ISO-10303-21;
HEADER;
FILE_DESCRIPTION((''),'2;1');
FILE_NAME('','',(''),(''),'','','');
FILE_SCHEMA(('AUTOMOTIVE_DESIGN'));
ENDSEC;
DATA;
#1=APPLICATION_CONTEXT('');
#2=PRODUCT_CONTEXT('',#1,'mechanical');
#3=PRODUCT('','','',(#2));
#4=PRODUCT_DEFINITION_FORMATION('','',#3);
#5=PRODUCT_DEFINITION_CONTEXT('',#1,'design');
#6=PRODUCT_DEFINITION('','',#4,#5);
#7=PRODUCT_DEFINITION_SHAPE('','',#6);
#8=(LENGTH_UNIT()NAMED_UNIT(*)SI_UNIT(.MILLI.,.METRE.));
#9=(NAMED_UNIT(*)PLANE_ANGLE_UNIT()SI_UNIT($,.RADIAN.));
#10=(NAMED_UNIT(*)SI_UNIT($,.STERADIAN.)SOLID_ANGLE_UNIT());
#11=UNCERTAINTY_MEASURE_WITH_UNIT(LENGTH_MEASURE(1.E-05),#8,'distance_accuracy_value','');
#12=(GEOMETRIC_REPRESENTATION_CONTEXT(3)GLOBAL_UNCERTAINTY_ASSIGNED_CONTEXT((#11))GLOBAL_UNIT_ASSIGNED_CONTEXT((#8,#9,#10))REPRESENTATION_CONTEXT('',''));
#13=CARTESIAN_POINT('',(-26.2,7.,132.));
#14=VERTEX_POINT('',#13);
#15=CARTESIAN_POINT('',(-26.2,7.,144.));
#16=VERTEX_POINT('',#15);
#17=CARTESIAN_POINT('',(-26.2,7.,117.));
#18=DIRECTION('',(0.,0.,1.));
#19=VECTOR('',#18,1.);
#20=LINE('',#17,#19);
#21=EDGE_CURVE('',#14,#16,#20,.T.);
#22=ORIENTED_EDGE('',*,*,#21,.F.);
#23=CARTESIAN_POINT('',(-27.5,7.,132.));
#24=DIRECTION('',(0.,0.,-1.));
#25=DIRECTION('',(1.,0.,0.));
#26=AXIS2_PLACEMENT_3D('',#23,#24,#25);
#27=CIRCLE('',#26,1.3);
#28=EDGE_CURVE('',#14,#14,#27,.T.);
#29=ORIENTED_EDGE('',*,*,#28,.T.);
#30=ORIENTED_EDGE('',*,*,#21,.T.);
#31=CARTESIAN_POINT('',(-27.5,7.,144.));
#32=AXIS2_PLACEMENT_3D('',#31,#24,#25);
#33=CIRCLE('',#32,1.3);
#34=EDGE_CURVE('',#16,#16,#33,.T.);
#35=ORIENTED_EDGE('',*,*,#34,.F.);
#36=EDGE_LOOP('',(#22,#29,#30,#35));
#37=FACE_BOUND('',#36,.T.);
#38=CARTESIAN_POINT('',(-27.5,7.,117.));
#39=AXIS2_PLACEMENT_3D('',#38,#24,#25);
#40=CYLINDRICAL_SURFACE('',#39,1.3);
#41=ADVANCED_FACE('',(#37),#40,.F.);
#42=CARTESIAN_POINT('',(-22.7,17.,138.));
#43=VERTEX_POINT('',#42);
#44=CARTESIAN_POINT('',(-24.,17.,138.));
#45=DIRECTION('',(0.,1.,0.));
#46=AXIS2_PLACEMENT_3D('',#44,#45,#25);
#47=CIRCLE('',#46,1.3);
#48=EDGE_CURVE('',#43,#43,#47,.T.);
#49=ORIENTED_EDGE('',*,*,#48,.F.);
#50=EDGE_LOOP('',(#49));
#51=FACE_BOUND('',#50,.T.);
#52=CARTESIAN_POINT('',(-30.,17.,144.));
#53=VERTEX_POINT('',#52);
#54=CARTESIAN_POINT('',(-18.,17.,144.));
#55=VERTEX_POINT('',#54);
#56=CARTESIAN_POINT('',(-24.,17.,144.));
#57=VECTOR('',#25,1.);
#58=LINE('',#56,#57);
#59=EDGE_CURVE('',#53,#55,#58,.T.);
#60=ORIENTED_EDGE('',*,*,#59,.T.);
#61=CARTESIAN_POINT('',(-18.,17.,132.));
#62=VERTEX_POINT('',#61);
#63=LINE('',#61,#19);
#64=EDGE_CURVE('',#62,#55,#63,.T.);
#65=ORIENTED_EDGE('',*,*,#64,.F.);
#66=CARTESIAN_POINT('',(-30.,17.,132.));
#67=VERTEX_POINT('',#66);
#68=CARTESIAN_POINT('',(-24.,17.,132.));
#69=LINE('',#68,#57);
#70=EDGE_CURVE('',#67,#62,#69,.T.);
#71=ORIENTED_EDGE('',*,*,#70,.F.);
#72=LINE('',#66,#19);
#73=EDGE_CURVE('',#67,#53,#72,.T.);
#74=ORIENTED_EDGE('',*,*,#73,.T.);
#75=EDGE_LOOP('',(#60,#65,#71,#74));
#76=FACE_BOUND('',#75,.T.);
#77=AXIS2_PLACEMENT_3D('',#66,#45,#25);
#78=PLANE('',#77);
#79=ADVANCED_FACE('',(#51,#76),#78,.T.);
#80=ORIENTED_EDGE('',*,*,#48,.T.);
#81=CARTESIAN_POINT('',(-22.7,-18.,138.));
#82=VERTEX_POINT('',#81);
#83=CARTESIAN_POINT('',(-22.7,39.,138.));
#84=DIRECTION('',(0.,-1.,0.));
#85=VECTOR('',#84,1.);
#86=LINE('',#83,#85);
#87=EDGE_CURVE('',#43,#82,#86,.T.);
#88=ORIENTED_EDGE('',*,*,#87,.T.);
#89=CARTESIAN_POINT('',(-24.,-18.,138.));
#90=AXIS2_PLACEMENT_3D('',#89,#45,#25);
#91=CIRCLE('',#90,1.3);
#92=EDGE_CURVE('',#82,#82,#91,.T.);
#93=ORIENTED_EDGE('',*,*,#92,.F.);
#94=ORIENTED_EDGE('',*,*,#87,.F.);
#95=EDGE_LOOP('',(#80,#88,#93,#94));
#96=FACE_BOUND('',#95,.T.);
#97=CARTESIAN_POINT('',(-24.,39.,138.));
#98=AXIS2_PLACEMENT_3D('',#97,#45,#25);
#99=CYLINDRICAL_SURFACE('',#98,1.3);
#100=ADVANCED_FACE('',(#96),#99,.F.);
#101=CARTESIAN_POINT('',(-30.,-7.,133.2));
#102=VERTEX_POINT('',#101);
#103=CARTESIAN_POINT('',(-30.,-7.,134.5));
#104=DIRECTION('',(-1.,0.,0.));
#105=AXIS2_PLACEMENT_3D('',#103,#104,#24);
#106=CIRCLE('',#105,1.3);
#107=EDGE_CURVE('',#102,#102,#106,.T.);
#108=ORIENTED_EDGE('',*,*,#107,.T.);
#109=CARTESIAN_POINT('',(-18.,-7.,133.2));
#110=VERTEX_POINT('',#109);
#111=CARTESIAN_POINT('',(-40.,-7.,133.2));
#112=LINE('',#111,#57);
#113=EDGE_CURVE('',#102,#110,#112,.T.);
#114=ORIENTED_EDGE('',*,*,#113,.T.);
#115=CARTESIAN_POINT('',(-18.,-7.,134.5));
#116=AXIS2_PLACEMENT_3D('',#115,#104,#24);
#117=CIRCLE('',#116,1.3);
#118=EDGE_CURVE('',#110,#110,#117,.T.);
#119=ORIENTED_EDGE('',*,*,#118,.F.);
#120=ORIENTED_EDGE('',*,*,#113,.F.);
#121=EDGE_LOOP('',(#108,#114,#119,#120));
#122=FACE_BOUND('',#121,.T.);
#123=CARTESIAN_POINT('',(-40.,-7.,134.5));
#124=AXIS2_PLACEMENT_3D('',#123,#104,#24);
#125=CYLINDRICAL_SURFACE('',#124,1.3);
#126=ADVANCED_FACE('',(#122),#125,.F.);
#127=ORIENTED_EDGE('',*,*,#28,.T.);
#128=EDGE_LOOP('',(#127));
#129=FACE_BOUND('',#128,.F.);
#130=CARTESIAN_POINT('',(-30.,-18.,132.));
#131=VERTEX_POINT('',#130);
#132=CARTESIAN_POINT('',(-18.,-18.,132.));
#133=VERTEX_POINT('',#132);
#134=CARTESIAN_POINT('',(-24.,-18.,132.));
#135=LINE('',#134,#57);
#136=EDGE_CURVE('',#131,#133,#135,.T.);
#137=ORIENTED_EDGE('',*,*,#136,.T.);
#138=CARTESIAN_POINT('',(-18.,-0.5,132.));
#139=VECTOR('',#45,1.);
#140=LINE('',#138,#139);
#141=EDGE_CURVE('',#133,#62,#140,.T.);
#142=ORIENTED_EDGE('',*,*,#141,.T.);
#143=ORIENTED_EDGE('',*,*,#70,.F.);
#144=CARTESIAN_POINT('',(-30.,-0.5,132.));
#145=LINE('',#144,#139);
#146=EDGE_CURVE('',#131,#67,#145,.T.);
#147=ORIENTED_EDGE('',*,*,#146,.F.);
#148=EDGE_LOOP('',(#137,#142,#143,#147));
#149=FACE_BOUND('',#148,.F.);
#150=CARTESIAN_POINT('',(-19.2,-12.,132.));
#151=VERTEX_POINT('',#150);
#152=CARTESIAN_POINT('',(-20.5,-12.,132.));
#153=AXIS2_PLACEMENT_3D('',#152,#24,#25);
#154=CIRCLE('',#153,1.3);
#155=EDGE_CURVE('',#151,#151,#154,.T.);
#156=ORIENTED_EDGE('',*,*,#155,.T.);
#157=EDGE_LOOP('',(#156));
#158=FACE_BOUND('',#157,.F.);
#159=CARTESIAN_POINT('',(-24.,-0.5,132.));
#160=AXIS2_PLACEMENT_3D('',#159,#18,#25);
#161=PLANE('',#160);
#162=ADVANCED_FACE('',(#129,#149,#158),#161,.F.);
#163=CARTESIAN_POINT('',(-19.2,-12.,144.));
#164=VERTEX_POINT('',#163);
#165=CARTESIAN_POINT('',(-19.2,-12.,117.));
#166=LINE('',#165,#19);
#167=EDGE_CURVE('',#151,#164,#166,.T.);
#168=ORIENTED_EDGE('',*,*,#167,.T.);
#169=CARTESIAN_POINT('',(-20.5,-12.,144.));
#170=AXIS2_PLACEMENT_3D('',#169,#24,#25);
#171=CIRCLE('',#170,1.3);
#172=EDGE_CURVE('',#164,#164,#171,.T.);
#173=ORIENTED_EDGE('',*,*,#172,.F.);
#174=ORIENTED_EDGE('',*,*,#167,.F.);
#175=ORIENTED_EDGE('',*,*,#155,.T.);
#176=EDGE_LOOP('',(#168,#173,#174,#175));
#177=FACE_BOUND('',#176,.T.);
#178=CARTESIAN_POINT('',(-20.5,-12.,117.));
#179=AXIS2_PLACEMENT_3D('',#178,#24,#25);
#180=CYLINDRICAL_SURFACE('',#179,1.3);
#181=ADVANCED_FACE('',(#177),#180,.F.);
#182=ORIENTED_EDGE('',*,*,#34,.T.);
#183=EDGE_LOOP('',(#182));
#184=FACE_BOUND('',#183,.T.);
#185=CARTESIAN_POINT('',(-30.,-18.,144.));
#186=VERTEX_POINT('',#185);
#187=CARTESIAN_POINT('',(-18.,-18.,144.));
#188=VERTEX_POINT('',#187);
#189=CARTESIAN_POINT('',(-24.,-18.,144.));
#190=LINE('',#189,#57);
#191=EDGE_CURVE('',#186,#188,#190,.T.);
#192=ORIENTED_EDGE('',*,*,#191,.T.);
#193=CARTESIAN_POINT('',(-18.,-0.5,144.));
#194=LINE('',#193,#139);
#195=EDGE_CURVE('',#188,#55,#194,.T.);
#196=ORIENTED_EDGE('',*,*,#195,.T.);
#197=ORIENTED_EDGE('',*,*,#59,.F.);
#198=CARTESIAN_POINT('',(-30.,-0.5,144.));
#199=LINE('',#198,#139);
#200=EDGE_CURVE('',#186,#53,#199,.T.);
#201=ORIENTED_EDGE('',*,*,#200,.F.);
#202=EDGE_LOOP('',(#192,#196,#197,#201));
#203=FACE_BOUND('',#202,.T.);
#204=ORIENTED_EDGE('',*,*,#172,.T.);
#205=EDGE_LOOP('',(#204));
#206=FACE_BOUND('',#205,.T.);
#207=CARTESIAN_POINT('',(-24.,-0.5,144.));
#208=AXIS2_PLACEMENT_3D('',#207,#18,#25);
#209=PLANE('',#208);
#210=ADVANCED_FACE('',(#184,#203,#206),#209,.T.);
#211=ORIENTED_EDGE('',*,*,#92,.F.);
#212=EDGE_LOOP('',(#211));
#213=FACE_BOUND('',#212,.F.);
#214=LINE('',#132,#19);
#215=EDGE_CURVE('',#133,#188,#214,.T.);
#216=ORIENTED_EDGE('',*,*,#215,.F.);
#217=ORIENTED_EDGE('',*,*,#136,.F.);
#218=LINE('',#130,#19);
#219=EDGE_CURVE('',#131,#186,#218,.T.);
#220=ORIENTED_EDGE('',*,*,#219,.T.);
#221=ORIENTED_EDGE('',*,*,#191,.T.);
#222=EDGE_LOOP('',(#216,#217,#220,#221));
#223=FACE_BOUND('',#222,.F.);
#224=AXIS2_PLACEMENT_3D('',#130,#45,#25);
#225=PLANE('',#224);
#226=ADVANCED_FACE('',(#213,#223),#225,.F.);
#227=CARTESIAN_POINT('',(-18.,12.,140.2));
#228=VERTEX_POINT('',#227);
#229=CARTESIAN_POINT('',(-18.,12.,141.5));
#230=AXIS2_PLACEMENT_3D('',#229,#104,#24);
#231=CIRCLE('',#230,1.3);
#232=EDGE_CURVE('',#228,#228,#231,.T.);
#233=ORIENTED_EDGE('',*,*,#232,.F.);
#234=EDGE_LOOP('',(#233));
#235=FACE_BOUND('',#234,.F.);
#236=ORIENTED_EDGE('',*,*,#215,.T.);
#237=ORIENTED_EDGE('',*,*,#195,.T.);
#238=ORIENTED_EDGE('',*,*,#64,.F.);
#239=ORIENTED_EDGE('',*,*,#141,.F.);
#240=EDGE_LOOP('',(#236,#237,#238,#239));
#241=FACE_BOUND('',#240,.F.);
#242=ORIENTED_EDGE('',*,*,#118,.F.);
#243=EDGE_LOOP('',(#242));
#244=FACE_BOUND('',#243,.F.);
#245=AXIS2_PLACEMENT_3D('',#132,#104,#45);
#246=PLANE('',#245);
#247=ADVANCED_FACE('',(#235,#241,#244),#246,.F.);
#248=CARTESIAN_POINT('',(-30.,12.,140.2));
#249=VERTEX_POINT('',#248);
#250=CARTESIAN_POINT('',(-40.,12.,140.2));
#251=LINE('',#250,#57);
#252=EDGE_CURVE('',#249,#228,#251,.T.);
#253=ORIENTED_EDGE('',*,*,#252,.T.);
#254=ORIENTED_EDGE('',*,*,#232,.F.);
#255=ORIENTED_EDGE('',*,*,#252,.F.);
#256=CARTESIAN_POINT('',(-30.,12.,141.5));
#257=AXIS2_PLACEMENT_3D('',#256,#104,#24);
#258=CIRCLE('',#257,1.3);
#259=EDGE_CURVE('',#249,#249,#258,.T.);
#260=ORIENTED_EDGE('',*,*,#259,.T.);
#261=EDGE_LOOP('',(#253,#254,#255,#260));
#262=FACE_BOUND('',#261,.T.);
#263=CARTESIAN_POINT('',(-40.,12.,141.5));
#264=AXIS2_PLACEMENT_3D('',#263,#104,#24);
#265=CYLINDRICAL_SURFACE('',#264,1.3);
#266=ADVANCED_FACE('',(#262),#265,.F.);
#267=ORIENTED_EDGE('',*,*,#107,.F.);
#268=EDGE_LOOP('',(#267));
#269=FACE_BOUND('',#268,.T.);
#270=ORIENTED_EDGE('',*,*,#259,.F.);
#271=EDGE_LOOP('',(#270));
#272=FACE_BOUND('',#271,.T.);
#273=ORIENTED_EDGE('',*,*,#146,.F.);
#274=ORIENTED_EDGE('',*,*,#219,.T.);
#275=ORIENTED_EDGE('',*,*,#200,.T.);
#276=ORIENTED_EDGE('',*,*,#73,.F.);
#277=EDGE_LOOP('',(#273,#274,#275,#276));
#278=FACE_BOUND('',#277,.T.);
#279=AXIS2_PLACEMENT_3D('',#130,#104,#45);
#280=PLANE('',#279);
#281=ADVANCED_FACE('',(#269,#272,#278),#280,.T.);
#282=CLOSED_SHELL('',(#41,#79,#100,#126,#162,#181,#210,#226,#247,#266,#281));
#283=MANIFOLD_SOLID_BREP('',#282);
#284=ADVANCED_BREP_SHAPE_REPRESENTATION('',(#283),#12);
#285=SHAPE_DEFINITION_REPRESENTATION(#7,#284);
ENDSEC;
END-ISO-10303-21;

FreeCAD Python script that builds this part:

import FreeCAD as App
import Part
import Sketcher
from FreeCAD import Vector
Q = App.Units.Quantity


def add_polygon(sketch, points):
    """Adds a closed chain of lines whose ends are joined by coincident constraints."""
    first, n = sketch.GeometryCount, len(points)
    for a, b in zip(points, points[1:] + points[:1]):
        sketch.addGeometry(Part.LineSegment(App.Vector(*a, 0), App.Vector(*b, 0)), False)
    for i in range(n):
        sketch.addConstraint(Sketcher.Constraint("Coincident", first + i, 2, first + (i + 1) % n, 1))

doc = App.newDocument("Part")
body = doc.addObject("PartDesign::Body", "Body")

# Sketch on XY plane
sketch1 = body.newObject("Sketcher::SketchObject", "Sketch")
sketch1.AttachmentSupport = (doc.getObject("XY_Plane"), [""])
sketch1.MapMode = "FlatFace"
sketch1.addGeometry(Part.Circle(Vector(0, 0, 0), Vector(0, 0, 1), 1.3), False)
sketch1.addConstraint([
    Sketcher.Constraint("Coincident", 0, 3, -1, 1),
    Sketcher.Constraint("Diameter", 0, Q("2.6 mm")),
])
pad1 = body.newObject("PartDesign::Pad", "Pad")
pad1.Profile = sketch1
pad1.Length = 40
body2 = doc.addObject("PartDesign::Body", "Body001")
doc.recompute()

body.Placement = App.Placement(Vector(0, 0, 0), App.Rotation(Vector(0, 1, 0), 90))
boolean = body2.newObject("PartDesign::Boolean", "Boolean")
boolean.Type = "Fuse"
boolean.addObjects([body])
body3 = doc.addObject("PartDesign::Body", "Body002")
doc.recompute()

body2.Placement = App.Placement(Vector(-40, 12, 9.5), App.Rotation(Vector(0, 0, 1), 0))
boolean2 = body3.newObject("PartDesign::Boolean", "Boolean001")
boolean2.Type = "Fuse"
boolean2.addObjects([body2])
body4 = doc.addObject("PartDesign::Body", "Body003")

# Sketch on XY plane
sketch2 = body4.newObject("Sketcher::SketchObject", "Sketch001")
sketch2.AttachmentSupport = (doc.getObject("XY_Plane003"), [""])
sketch2.MapMode = "FlatFace"
sketch2.addGeometry(Part.Circle(Vector(0, 0, 0), Vector(0, 0, 1), 1.3), False)
sketch2.addConstraint([
    Sketcher.Constraint("Coincident", 0, 3, -1, 1),
    Sketcher.Constraint("Diameter", 0, Q("2.6 mm")),
])
pad2 = body4.newObject("PartDesign::Pad", "Pad001")
pad2.Profile = sketch2
pad2.Length = 40
body5 = doc.addObject("PartDesign::Body", "Body004")
doc.recompute()

body4.Placement = App.Placement(Vector(0, 0, 0), App.Rotation(Vector(0, 1, 0), 90))
boolean3 = body5.newObject("PartDesign::Boolean", "Boolean002")
boolean3.Type = "Fuse"
boolean3.addObjects([body4])
body6 = doc.addObject("PartDesign::Body", "Body005")
body6.AllowCompound = True
doc.recompute()

body5.Placement = App.Placement(Vector(-40, -7, 2.5), App.Rotation(Vector(0, 0, 1), 0))
boolean4 = body6.newObject("PartDesign::Boolean", "Boolean003")
boolean4.Type = "Fuse"
boolean4.addObjects([body5])
doc.recompute()

boolean5 = body6.newObject("PartDesign::Boolean", "Boolean004")
boolean5.Type = "Fuse"
boolean5.addObjects([body3])
body7 = doc.addObject("PartDesign::Body", "Body006")

# Sketch on XY plane
sketch3 = body7.newObject("Sketcher::SketchObject", "Sketch002")
sketch3.AttachmentSupport = (doc.getObject("XY_Plane006"), [""])
sketch3.MapMode = "FlatFace"
sketch3.addGeometry(Part.Circle(Vector(0, 0, 0), Vector(0, 0, 1), 1.3), False)
sketch3.addConstraint([
    Sketcher.Constraint("Coincident", 0, 3, -1, 1),
    Sketcher.Constraint("Diameter", 0, Q("2.6 mm")),
])
pad3 = body7.newObject("PartDesign::Pad", "Pad002")
pad3.Profile = sketch3
pad3.Length = 70
body8 = doc.addObject("PartDesign::Body", "Body007")
doc.recompute()

body7.Placement = App.Placement(Vector(0, 0, 0), App.Rotation(Vector(1, 0, 0), 90))
boolean6 = body8.newObject("PartDesign::Boolean", "Boolean005")
boolean6.Type = "Fuse"
boolean6.addObjects([body7])
body9 = doc.addObject("PartDesign::Body", "Body008")
body9.AllowCompound = True
doc.recompute()

body8.Placement = App.Placement(Vector(-24, 39, 6), App.Rotation(Vector(0, 0, 1), 0))
boolean7 = body9.newObject("PartDesign::Boolean", "Boolean006")
boolean7.Type = "Fuse"
boolean7.addObjects([body8])
doc.recompute()

boolean8 = body9.newObject("PartDesign::Boolean", "Boolean007")
boolean8.Type = "Fuse"
boolean8.addObjects([body6])
body10 = doc.addObject("PartDesign::Body", "Body009")
body10.AllowCompound = True

# Sketch on XY plane
sketch4 = body10.newObject("Sketcher::SketchObject", "Sketch003")
sketch4.AttachmentSupport = (doc.getObject("XY_Plane009"), [""])
sketch4.MapMode = "FlatFace"
sketch4.AttachmentOffset = App.Placement(Vector(0, 0, -15), App.Rotation())
sketch4.addGeometry(Part.Circle(Vector(-27.5, 7, 0), Vector(0, 0, 1), 1.3), False)
sketch4.addConstraint([
    Sketcher.Constraint("Diameter", 0, Q("2.6 mm")),
    Sketcher.Constraint("DistanceY", -1, 1, 0, 3, Q("7 mm")),
    Sketcher.Constraint("DistanceX", 0, 3, -1, 1, Q("27.5 mm")),
])
pad4 = body10.newObject("PartDesign::Pad", "Pad003")
pad4.Profile = sketch4
pad4.Length = 40
doc.recompute()

boolean9 = body10.newObject("PartDesign::Boolean", "Boolean008")
boolean9.Type = "Fuse"
boolean9.addObjects([body9])
body11 = doc.addObject("PartDesign::Body", "Body010")
body11.AllowCompound = True

# Sketch on XY plane
sketch5 = body11.newObject("Sketcher::SketchObject", "Sketch004")
sketch5.AttachmentSupport = (doc.getObject("XY_Plane010"), [""])
sketch5.MapMode = "FlatFace"
sketch5.AttachmentOffset = App.Placement(Vector(0, 0, -15), App.Rotation())
sketch5.addGeometry(Part.Circle(Vector(-20.5, -12, 0), Vector(0, 0, 1), 1.3), False)
sketch5.addConstraint([
    Sketcher.Constraint("Diameter", 0, Q("2.6 mm")),
    Sketcher.Constraint("DistanceY", 0, 3, -1, 1, Q("12 mm")),
    Sketcher.Constraint("DistanceX", 0, 3, -1, 1, Q("20.5 mm")),
])
pad5 = body11.newObject("PartDesign::Pad", "Pad004")
pad5.Profile = sketch5
pad5.Length = 40
doc.recompute()

boolean10 = body11.newObject("PartDesign::Boolean", "Boolean009")
boolean10.Type = "Fuse"
boolean10.addObjects([body10])
body12 = doc.addObject("PartDesign::Body", "Body011")

# Sketch on XY plane
sketch6 = body12.newObject("Sketcher::SketchObject", "Sketch005")
sketch6.AttachmentSupport = (doc.getObject("XY_Plane011"), [""])
sketch6.MapMode = "FlatFace"
add_polygon(sketch6, [(-30, 17), (-30, -18), (-18, -18), (-18, 17)])  # lines 0-3
sketch6.addConstraint([
    Sketcher.Constraint("Vertical", 0),
    Sketcher.Constraint("Horizontal", 1),
    Sketcher.Constraint("Vertical", 2),
    Sketcher.Constraint("Horizontal", 3),
    Sketcher.Constraint("DistanceX", 1, 1, 1, 2, Q("12 mm")),
    Sketcher.Constraint("DistanceY", 0, 2, 0, 1, Q("35 mm")),
    Sketcher.Constraint("DistanceX", 0, 2, -1, 1, Q("30 mm")),
    Sketcher.Constraint("DistanceY", 0, 2, -1, 1, Q("18 mm")),
])
pad6 = body12.newObject("PartDesign::Pad", "Pad005")
pad6.Profile = sketch6
pad6.Length = 12
doc.recompute()

boolean11 = body12.newObject("PartDesign::Boolean", "Boolean010")
boolean11.Type = "Cut"
boolean11.addObjects([body11])
body13 = doc.addObject("PartDesign::Body", "Body012")
doc.recompute()

body12.Placement = App.Placement(Vector(0, 0, 132), App.Rotation(Vector(0, 0, 1), 0))
boolean12 = body13.newObject("PartDesign::Boolean", "Boolean011")
boolean12.Type = "Fuse"
boolean12.addObjects([body12])

doc.recompute()
